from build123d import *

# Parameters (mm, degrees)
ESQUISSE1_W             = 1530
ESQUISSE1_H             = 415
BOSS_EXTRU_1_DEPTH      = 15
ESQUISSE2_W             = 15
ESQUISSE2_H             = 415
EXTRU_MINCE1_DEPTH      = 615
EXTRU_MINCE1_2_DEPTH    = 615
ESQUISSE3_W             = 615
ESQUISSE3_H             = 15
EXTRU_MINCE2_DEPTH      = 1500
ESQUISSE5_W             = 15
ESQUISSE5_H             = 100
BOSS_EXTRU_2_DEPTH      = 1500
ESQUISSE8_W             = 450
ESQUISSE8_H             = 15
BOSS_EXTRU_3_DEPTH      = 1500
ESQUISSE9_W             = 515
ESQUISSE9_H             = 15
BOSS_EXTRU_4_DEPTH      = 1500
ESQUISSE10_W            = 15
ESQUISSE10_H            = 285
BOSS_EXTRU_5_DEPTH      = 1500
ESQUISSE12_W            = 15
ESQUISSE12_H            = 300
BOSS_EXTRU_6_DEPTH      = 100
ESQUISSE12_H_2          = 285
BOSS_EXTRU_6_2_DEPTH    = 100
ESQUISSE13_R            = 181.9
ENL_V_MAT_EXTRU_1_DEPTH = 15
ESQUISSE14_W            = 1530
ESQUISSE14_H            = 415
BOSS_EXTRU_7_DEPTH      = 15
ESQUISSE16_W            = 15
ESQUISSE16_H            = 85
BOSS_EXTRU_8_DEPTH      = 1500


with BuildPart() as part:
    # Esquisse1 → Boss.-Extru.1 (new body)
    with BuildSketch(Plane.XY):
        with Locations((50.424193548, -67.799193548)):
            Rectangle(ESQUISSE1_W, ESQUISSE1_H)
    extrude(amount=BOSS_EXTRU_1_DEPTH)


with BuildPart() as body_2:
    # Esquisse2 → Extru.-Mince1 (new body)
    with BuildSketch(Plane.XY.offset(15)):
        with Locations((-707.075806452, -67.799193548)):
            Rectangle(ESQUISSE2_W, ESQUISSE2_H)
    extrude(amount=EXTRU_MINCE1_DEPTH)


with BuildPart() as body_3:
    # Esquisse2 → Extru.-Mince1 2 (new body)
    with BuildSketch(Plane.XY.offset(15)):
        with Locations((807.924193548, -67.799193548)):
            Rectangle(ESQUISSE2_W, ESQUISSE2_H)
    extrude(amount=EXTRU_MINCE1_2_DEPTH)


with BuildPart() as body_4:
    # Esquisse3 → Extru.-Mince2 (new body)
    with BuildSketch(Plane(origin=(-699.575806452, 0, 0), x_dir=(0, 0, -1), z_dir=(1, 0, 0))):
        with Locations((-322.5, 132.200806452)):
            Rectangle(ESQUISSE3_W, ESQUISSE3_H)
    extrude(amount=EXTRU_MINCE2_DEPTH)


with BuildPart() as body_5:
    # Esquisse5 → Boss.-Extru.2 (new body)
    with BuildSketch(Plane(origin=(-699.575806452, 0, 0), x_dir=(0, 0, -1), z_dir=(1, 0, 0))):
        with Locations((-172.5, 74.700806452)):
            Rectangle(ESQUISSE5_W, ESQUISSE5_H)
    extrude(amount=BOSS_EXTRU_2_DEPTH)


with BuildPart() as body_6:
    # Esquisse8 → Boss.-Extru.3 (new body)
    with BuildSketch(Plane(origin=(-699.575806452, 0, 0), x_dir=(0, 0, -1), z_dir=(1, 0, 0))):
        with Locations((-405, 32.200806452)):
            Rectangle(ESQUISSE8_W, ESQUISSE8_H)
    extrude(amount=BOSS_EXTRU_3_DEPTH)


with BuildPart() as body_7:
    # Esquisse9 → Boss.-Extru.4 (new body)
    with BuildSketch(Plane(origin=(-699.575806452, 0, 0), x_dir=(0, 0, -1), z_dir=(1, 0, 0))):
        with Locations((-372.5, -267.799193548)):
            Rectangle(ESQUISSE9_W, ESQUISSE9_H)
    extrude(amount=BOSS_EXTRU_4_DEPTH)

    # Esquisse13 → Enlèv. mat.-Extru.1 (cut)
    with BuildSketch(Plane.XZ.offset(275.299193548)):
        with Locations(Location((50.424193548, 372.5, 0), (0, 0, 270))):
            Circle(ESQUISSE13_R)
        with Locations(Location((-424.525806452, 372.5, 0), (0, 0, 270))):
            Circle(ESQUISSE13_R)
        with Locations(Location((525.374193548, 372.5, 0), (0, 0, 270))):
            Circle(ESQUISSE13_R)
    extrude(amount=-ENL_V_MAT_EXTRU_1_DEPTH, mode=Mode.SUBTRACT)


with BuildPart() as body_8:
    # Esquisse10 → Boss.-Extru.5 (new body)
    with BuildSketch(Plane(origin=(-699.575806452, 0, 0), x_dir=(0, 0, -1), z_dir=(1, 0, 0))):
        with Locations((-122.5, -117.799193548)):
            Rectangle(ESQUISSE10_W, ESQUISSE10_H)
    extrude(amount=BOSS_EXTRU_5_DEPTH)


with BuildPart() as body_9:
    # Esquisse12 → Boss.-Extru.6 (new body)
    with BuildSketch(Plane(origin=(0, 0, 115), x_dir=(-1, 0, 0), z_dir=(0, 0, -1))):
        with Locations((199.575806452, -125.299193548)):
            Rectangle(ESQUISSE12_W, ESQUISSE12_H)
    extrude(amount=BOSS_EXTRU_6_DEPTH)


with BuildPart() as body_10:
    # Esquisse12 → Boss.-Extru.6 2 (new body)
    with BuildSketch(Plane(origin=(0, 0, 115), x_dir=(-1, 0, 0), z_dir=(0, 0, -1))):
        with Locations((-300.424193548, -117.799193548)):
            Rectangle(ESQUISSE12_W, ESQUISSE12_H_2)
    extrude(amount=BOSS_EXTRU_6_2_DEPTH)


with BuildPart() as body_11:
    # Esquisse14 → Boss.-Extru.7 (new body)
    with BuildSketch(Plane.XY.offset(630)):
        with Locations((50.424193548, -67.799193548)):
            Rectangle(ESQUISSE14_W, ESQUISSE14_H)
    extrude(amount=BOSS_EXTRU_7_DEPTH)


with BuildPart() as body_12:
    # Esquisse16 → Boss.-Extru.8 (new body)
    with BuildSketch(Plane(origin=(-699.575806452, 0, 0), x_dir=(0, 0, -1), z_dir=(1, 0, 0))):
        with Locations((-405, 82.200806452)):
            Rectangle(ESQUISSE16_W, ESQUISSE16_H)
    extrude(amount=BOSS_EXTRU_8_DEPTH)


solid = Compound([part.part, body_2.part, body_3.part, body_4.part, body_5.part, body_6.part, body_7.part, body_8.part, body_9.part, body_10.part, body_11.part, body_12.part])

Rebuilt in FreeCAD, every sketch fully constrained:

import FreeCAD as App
import Part
import Sketcher


def add_polygon(sketch, points):
    """Adds a closed chain of lines whose ends are joined by coincident constraints."""
    first, n = sketch.GeometryCount, len(points)
    for a, b in zip(points, points[1:] + points[:1]):
        sketch.addGeometry(Part.LineSegment(App.Vector(*a, 0), App.Vector(*b, 0)), False)
    for i in range(n):
        sketch.addConstraint(Sketcher.Constraint("Coincident", first + i, 2, first + (i + 1) % n, 1))

doc = App.newDocument("Part")
body = doc.addObject("PartDesign::Body", "Body")

# Sketch on XY plane
sketch1 = body.newObject("Sketcher::SketchObject", "Sketch")
sketch1.AttachmentSupport = (doc.getObject("XY_Plane"), [""])
sketch1.MapMode = "FlatFace"
add_polygon(sketch1, [(-715, 140), (-715, -275), (815, -275), (815, 140)])  # lines 0-3
sketch1.addConstraint([
    Sketcher.Constraint("Vertical", 0),
    Sketcher.Constraint("Horizontal", 1),
    Sketcher.Constraint("Vertical", 2),
    Sketcher.Constraint("Horizontal", 3),
    Sketcher.Constraint("DistanceX", 1, 1, 1, 2, 1530.0),
    Sketcher.Constraint("DistanceY", 0, 2, 0, 1, 415.0),
    Sketcher.Constraint("DistanceX", 0, 2, -1, 1, 714.575806),
    Sketcher.Constraint("DistanceY", 0, 2, -1, 1, 275.299194),
])
pad1 = body.newObject("PartDesign::Pad", "Pad")
pad1.Profile = sketch1
pad1.Length = 15
body2 = doc.addObject("PartDesign::Body", "Body001")

# Sketch on XY plane
sketch2 = body2.newObject("Sketcher::SketchObject", "Sketch001")
sketch2.AttachmentSupport = (doc.getObject("XY_Plane001"), [""])
sketch2.MapMode = "FlatFace"
sketch2.AttachmentOffset = App.Placement(App.Vector(0, 0, 15), App.Rotation())
add_polygon(sketch2, [(-715, 140), (-715, -275), (-700, -275), (-700, 140)])  # lines 0-3
sketch2.addConstraint([
    Sketcher.Constraint("Vertical", 0),
    Sketcher.Constraint("Horizontal", 1),
    Sketcher.Constraint("Vertical", 2),
    Sketcher.Constraint("Horizontal", 3),
    Sketcher.Constraint("DistanceX", 1, 1, 1, 2, 15.0),
    Sketcher.Constraint("DistanceY", 0, 2, 0, 1, 415.0),
    Sketcher.Constraint("DistanceX", 0, 2, -1, 1, 714.575806),
    Sketcher.Constraint("DistanceY", 0, 2, -1, 1, 275.299194),
])
pad2 = body2.newObject("PartDesign::Pad", "Pad001")
pad2.Profile = sketch2
pad2.Length = 615
body3 = doc.addObject("PartDesign::Body", "Body002")

# Sketch on XY plane
sketch3 = body3.newObject("Sketcher::SketchObject", "Sketch002")
sketch3.AttachmentSupport = (doc.getObject("XY_Plane002"), [""])
sketch3.MapMode = "FlatFace"
sketch3.AttachmentOffset = App.Placement(App.Vector(0, 0, 15), App.Rotation())
add_polygon(sketch3, [(800, 140), (800, -275), (815, -275), (815, 140)])  # lines 0-3
sketch3.addConstraint([
    Sketcher.Constraint("Vertical", 0),
    Sketcher.Constraint("Horizontal", 1),
    Sketcher.Constraint("Vertical", 2),
    Sketcher.Constraint("Horizontal", 3),
    Sketcher.Constraint("DistanceX", 1, 1, 1, 2, 15.0),
    Sketcher.Constraint("DistanceY", 0, 2, 0, 1, 415.0),
    Sketcher.Constraint("DistanceX", -1, 1, 0, 2, 800.424194),
    Sketcher.Constraint("DistanceY", 0, 2, -1, 1, 275.299194),
])
pad3 = body3.newObject("PartDesign::Pad", "Pad002")
pad3.Profile = sketch3
pad3.Length = 615
body4 = doc.addObject("PartDesign::Body", "Body003")

# Sketch on YZ plane
sketch4 = body4.newObject("Sketcher::SketchObject", "Sketch003")
sketch4.AttachmentSupport = (doc.getObject("YZ_Plane003"), [""])
sketch4.MapMode = "FlatFace"
sketch4.AttachmentOffset = App.Placement(App.Vector(0, 0, -699.575806), App.Rotation())
add_polygon(sketch4, [(140, 630), (125, 630), (125, 15), (140, 15)])  # lines 0-3
sketch4.addConstraint([
    Sketcher.Constraint("Horizontal", 0),
    Sketcher.Constraint("Vertical", 1),
    Sketcher.Constraint("Horizontal", 2),
    Sketcher.Constraint("Vertical", 3),
    Sketcher.Constraint("DistanceX", 0, 2, 0, 1, 15.0),
    Sketcher.Constraint("DistanceY", 1, 2, 1, 1, 615.0),
    Sketcher.Constraint("DistanceY", -1, 1, 0, 2, 630.0),
    Sketcher.Constraint("DistanceX", -1, 1, 0, 2, 124.700806),
])
pad4 = body4.newObject("PartDesign::Pad", "Pad003")
pad4.Profile = sketch4
pad4.Length = 1500
body5 = doc.addObject("PartDesign::Body", "Body004")

# Sketch on YZ plane
sketch5 = body5.newObject("Sketcher::SketchObject", "Sketch004")
sketch5.AttachmentSupport = (doc.getObject("YZ_Plane004"), [""])
sketch5.MapMode = "FlatFace"
sketch5.AttachmentOffset = App.Placement(App.Vector(0, 0, -699.575806), App.Rotation())
add_polygon(sketch5, [(125, 180), (25, 180), (25, 165), (125, 165)])  # lines 0-3
sketch5.addConstraint([
    Sketcher.Constraint("Horizontal", 0),
    Sketcher.Constraint("Vertical", 1),
    Sketcher.Constraint("Horizontal", 2),
    Sketcher.Constraint("Vertical", 3),
    Sketcher.Constraint("DistanceX", 0, 2, 0, 1, 100.0),
    Sketcher.Constraint("DistanceY", 1, 2, 1, 1, 15.0),
    Sketcher.Constraint("DistanceY", -1, 1, 0, 2, 180.0),
    Sketcher.Constraint("DistanceX", -1, 1, 0, 2, 24.700806),
])
pad5 = body5.newObject("PartDesign::Pad", "Pad004")
pad5.Profile = sketch5
pad5.Length = 1500
body6 = doc.addObject("PartDesign::Body", "Body005")

# Sketch on YZ plane
sketch6 = body6.newObject("Sketcher::SketchObject", "Sketch005")
sketch6.AttachmentSupport = (doc.getObject("YZ_Plane005"), [""])
sketch6.MapMode = "FlatFace"
sketch6.AttachmentOffset = App.Placement(App.Vector(0, 0, -699.575806), App.Rotation())
add_polygon(sketch6, [(40, 630), (25, 630), (25, 180), (40, 180)])  # lines 0-3
sketch6.addConstraint([
    Sketcher.Constraint("Horizontal", 0),
    Sketcher.Constraint("Vertical", 1),
    Sketcher.Constraint("Horizontal", 2),
    Sketcher.Constraint("Vertical", 3),
    Sketcher.Constraint("DistanceX", 0, 2, 0, 1, 15.0),
    Sketcher.Constraint("DistanceY", 1, 2, 1, 1, 450.0),
    Sketcher.Constraint("DistanceY", -1, 1, 0, 2, 630.0),
    Sketcher.Constraint("DistanceX", -1, 1, 0, 2, 24.700806),
])
pad6 = body6.newObject("PartDesign::Pad", "Pad005")
pad6.Profile = sketch6
pad6.Length = 1500
body7 = doc.addObject("PartDesign::Body", "Body006")

# Sketch on YZ plane
sketch7 = body7.newObject("Sketcher::SketchObject", "Sketch006")
sketch7.AttachmentSupport = (doc.getObject("YZ_Plane006"), [""])
sketch7.MapMode = "FlatFace"
sketch7.AttachmentOffset = App.Placement(App.Vector(0, 0, -699.575806), App.Rotation())
add_polygon(sketch7, [(-260, 630), (-275, 630), (-275, 115), (-260, 115)])  # lines 0-3
sketch7.addConstraint([
    Sketcher.Constraint("Horizontal", 0),
    Sketcher.Constraint("Vertical", 1),
    Sketcher.Constraint("Horizontal", 2),
    Sketcher.Constraint("Vertical", 3),
    Sketcher.Constraint("DistanceX", 0, 2, 0, 1, 15.0),
    Sketcher.Constraint("DistanceY", 1, 2, 1, 1, 515.0),
    Sketcher.Constraint("DistanceY", -1, 1, 0, 2, 630.0),
    Sketcher.Constraint("DistanceX", 0, 2, -1, 1, 275.299194),
])
pad7 = body7.newObject("PartDesign::Pad", "Pad006")
pad7.Profile = sketch7
pad7.Length = 1500

# Sketch on XZ plane
sketch8 = body7.newObject("Sketcher::SketchObject", "Sketch007")
sketch8.AttachmentSupport = (doc.getObject("XZ_Plane006"), [""])
sketch8.MapMode = "FlatFace"
sketch8.AttachmentOffset = App.Placement(App.Vector(0, 0, 275.299194), App.Rotation())
sketch8.addGeometry([
    Part.Circle(App.Vector(50, 372, 0), App.Vector(0, 0, 1), 182),
    Part.Circle(App.Vector(-425, 372, 0), App.Vector(0, 0, 1), 182),
    Part.Circle(App.Vector(525, 372, 0), App.Vector(0, 0, 1), 182),
], False)
sketch8.addConstraint([
    Sketcher.Constraint("Equal", 0, 1),
    Sketcher.Constraint("Equal", 1, 2),
    Sketcher.Constraint("Horizontal", 0, 3, 1, 3),
    Sketcher.Constraint("Horizontal", 1, 3, 2, 3),
    Sketcher.Constraint("Diameter", 0, 363.8),
    Sketcher.Constraint("DistanceY", -1, 1, 0, 3, 372.5),
    Sketcher.Constraint("DistanceX", 1, 3, 2, 3, 949.9),
    Sketcher.Constraint("DistanceX", 1, 3, 0, 3, 474.95),
    Sketcher.Constraint("DistanceX", -1, 1, 0, 3, 50.424194),
])
pocket1 = body7.newObject("PartDesign::Pocket", "Pocket")
pocket1.Profile = sketch8
pocket1.Length = 15
body8 = doc.addObject("PartDesign::Body", "Body007")

# Sketch on YZ plane
sketch9 = body8.newObject("Sketcher::SketchObject", "Sketch008")
sketch9.AttachmentSupport = (doc.getObject("YZ_Plane007"), [""])
sketch9.MapMode = "FlatFace"
sketch9.AttachmentOffset = App.Placement(App.Vector(0, 0, -699.575806), App.Rotation())
add_polygon(sketch9, [(25, 130), (-260, 130), (-260, 115), (25, 115)])  # lines 0-3
sketch9.addConstraint([
    Sketcher.Constraint("Horizontal", 0),
    Sketcher.Constraint("Vertical", 1),
    Sketcher.Constraint("Horizontal", 2),
    Sketcher.Constraint("Vertical", 3),
    Sketcher.Constraint("DistanceX", 0, 2, 0, 1, 285.0),
    Sketcher.Constraint("DistanceY", 1, 2, 1, 1, 15.0),
    Sketcher.Constraint("DistanceY", -1, 1, 0, 2, 130.0),
    Sketcher.Constraint("DistanceX", 0, 2, -1, 1, 260.299194),
])
pad8 = body8.newObject("PartDesign::Pad", "Pad007")
pad8.Profile = sketch9
pad8.Length = 1500
body9 = doc.addObject("PartDesign::Body", "Body008")

# Sketch on XY plane
sketch10 = body9.newObject("Sketcher::SketchObject", "Sketch009")
sketch10.AttachmentSupport = (doc.getObject("XY_Plane008"), [""])
sketch10.MapMode = "FlatFace"
sketch10.AttachmentOffset = App.Placement(App.Vector(0, 0, 115), App.Rotation())
add_polygon(sketch10, [(-192, 25), (-192, -275), (-207, -275), (-207, 25)])  # lines 0-3
sketch10.addConstraint([
    Sketcher.Constraint("Vertical", 0),
    Sketcher.Constraint("Horizontal", 1),
    Sketcher.Constraint("Vertical", 2),
    Sketcher.Constraint("Horizontal", 3),
    Sketcher.Constraint("DistanceX", 1, 2, 1, 1, 15.0),
    Sketcher.Constraint("DistanceY", 0, 2, 0, 1, 300.0),
    Sketcher.Constraint("DistanceX", 0, 2, -1, 1, 192.075806),
    Sketcher.Constraint("DistanceY", 0, 2, -1, 1, 275.299194),
])
pad9 = body9.newObject("PartDesign::Pad", "Pad008")
pad9.Profile = sketch10
pad9.Length = 100
pad9.Reversed = True
body10 = doc.addObject("PartDesign::Body", "Body009")

# Sketch on XY plane
sketch11 = body10.newObject("Sketcher::SketchObject", "Sketch010")
sketch11.AttachmentSupport = (doc.getObject("XY_Plane009"), [""])
sketch11.MapMode = "FlatFace"
sketch11.AttachmentOffset = App.Placement(App.Vector(0, 0, 115), App.Rotation())
add_polygon(sketch11, [(308, 25), (308, -260), (293, -260), (293, 25)])  # lines 0-3
sketch11.addConstraint([
    Sketcher.Constraint("Vertical", 0),
    Sketcher.Constraint("Horizontal", 1),
    Sketcher.Constraint("Vertical", 2),
    Sketcher.Constraint("Horizontal", 3),
    Sketcher.Constraint("DistanceX", 1, 2, 1, 1, 15.0),
    Sketcher.Constraint("DistanceY", 0, 2, 0, 1, 285.0),
    Sketcher.Constraint("DistanceX", -1, 1, 0, 2, 307.924194),
    Sketcher.Constraint("DistanceY", 0, 2, -1, 1, 260.299194),
])
pad10 = body10.newObject("PartDesign::Pad", "Pad009")
pad10.Profile = sketch11
pad10.Length = 100
pad10.Reversed = True
body11 = doc.addObject("PartDesign::Body", "Body010")

# Sketch on XY plane
sketch12 = body11.newObject("Sketcher::SketchObject", "Sketch011")
sketch12.AttachmentSupport = (doc.getObject("XY_Plane010"), [""])
sketch12.MapMode = "FlatFace"
sketch12.AttachmentOffset = App.Placement(App.Vector(0, 0, 630), App.Rotation())
add_polygon(sketch12, [(-715, 140), (-715, -275), (815, -275), (815, 140)])  # lines 0-3
sketch12.addConstraint([
    Sketcher.Constraint("Vertical", 0),
    Sketcher.Constraint("Horizontal", 1),
    Sketcher.Constraint("Vertical", 2),
    Sketcher.Constraint("Horizontal", 3),
    Sketcher.Constraint("DistanceX", 1, 1, 1, 2, 1530.0),
    Sketcher.Constraint("DistanceY", 0, 2, 0, 1, 415.0),
    Sketcher.Constraint("DistanceX", 0, 2, -1, 1, 714.575806),
    Sketcher.Constraint("DistanceY", 0, 2, -1, 1, 275.299194),
])
pad11 = body11.newObject("PartDesign::Pad", "Pad010")
pad11.Profile = sketch12
pad11.Length = 15
body12 = doc.addObject("PartDesign::Body", "Body011")

# Sketch on YZ plane
sketch13 = body12.newObject("Sketcher::SketchObject", "Sketch012")
sketch13.AttachmentSupport = (doc.getObject("YZ_Plane011"), [""])
sketch13.MapMode = "FlatFace"
sketch13.AttachmentOffset = App.Placement(App.Vector(0, 0, -699.575806), App.Rotation())
add_polygon(sketch13, [(125, 412), (40, 412), (40, 398), (125, 398)])  # lines 0-3
sketch13.addConstraint([
    Sketcher.Constraint("Horizontal", 0),
    Sketcher.Constraint("Vertical", 1),
    Sketcher.Constraint("Horizontal", 2),
    Sketcher.Constraint("Vertical", 3),
    Sketcher.Constraint("DistanceX", 0, 2, 0, 1, 85.0),
    Sketcher.Constraint("DistanceY", 1, 2, 1, 1, 15.0),
    Sketcher.Constraint("DistanceY", -1, 1, 0, 2, 412.5),
    Sketcher.Constraint("DistanceX", -1, 1, 0, 2, 39.700806),
])
pad12 = body12.newObject("PartDesign::Pad", "Pad011")
pad12.Profile = sketch13
pad12.Length = 1500

doc.recompute()
